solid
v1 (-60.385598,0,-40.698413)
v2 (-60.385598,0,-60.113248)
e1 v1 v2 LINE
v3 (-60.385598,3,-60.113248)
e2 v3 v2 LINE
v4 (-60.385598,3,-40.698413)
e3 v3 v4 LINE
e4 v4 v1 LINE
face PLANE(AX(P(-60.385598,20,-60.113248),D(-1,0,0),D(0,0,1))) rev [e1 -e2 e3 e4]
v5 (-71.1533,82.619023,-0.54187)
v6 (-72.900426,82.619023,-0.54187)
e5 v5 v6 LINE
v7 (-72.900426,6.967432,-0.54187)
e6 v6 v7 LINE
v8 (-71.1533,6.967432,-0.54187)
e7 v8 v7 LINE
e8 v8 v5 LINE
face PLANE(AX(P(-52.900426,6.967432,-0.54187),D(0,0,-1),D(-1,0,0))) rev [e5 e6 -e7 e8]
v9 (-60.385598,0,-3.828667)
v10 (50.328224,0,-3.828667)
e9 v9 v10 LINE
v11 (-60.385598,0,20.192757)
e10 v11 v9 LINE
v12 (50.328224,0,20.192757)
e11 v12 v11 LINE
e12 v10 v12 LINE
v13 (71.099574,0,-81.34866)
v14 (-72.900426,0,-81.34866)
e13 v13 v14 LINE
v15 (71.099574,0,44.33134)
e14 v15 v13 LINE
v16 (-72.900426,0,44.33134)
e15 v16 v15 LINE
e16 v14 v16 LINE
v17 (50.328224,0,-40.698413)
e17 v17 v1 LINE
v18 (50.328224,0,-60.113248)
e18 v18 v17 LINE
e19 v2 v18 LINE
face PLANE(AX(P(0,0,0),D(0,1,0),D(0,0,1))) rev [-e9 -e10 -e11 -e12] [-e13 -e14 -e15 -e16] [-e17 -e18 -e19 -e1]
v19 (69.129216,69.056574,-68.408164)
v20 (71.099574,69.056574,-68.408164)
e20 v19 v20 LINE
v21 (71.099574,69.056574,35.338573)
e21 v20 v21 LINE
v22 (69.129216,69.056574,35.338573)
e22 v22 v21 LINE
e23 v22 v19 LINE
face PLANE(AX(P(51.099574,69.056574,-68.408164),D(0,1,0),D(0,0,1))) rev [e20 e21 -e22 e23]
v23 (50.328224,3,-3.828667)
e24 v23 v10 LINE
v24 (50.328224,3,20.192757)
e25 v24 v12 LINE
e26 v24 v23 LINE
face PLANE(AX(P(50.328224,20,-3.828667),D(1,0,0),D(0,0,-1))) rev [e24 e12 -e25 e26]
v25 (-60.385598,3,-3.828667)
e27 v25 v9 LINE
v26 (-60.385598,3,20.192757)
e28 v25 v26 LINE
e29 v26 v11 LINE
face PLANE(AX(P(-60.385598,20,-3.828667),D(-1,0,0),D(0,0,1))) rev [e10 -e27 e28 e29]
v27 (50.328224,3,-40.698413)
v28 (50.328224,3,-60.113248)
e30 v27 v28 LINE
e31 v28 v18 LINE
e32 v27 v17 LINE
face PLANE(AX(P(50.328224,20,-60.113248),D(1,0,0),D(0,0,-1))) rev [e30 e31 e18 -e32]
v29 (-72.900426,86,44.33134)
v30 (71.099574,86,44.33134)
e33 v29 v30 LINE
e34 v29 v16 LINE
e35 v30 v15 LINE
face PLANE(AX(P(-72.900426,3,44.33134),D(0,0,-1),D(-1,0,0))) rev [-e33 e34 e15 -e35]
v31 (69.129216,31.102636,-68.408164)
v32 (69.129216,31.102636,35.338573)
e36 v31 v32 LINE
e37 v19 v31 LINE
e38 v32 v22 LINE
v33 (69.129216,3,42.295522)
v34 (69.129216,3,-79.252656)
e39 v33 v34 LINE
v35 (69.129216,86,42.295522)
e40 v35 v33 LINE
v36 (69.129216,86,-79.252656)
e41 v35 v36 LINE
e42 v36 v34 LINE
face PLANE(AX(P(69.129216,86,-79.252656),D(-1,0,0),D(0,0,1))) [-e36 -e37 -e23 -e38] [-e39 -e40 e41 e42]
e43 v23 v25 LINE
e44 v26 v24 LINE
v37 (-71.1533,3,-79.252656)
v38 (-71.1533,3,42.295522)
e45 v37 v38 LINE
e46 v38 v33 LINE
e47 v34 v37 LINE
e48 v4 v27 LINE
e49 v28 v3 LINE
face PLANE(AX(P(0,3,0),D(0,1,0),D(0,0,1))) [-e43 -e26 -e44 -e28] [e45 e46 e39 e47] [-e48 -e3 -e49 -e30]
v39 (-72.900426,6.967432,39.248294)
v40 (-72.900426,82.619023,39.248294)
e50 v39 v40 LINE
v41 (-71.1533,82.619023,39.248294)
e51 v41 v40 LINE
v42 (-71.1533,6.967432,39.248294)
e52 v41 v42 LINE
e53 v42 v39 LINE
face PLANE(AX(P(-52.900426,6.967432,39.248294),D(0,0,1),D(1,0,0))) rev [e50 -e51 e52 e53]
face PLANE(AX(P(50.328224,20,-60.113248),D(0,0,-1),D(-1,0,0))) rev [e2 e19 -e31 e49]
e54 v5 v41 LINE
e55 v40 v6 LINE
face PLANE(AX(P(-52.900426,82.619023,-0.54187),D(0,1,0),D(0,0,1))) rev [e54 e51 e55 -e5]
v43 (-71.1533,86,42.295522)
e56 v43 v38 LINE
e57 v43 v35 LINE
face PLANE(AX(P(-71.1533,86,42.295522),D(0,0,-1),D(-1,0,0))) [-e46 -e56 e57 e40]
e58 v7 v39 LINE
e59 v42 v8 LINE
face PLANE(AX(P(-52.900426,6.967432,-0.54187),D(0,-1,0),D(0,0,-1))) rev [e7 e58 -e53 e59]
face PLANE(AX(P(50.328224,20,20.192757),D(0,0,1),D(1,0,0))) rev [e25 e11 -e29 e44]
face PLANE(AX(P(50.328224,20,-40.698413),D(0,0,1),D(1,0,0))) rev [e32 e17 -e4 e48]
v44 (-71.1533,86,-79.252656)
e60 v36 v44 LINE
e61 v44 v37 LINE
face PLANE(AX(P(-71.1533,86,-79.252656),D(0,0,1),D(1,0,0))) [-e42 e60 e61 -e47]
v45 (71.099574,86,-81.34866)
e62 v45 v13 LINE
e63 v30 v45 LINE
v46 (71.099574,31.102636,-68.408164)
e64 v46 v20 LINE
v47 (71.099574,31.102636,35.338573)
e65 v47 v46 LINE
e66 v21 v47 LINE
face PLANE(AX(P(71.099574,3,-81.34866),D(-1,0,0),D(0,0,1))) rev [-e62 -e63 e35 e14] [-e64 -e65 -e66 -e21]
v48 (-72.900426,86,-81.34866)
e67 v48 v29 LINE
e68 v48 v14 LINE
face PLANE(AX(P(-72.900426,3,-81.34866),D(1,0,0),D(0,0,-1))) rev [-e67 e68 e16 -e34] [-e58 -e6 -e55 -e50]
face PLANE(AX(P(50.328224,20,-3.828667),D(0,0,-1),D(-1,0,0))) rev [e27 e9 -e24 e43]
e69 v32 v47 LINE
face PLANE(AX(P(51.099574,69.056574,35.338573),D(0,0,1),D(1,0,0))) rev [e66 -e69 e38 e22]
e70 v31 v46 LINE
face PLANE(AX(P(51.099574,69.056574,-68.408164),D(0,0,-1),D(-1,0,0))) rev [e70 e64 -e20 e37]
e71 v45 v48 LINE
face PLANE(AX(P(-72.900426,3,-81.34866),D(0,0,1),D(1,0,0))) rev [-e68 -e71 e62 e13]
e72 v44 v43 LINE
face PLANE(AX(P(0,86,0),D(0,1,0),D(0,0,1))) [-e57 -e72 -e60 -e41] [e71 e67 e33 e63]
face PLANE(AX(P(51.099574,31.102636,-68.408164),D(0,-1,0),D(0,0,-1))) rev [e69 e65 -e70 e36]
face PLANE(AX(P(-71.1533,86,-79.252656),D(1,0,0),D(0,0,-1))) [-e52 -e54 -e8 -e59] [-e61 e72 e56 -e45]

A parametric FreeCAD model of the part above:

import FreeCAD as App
import Part
import Sketcher

V = App.Vector
Q = App.Units.Quantity


def add_polygon(sketch, points):
    """Adds a closed chain of lines whose ends are joined by coincident constraints."""
    first, n = sketch.GeometryCount, len(points)
    for a, b in zip(points, points[1:] + points[:1]):
        sketch.addGeometry(Part.LineSegment(App.Vector(*a, 0), App.Vector(*b, 0)), False)
    for i in range(n):
        sketch.addConstraint(Sketcher.Constraint("Coincident", first + i, 2, first + (i + 1) % n, 1))

doc = App.newDocument("Part")
body = doc.addObject("PartDesign::Body", "Body")

# Sketch on XZ plane
sketch1 = body.newObject("Sketcher::SketchObject", "Sketch")
sketch1.AttachmentSupport = (doc.getObject("XZ_Plane"), [""])
sketch1.MapMode = "FlatFace"
add_polygon(sketch1, [(-72.900426, -81.34866), (-72.900426, 44.33134), (71.099574, 44.33134), (71.099574, -81.34866)])  # lines 0-3
sketch1.addConstraint([
    Sketcher.Constraint("Vertical", 0),
    Sketcher.Constraint("Horizontal", 1),
    Sketcher.Constraint("Vertical", 2),
    Sketcher.Constraint("Horizontal", 3),
    Sketcher.Constraint("DistanceX", 1, 1, 1, 2, Q("144 mm")),
    Sketcher.Constraint("DistanceY", 0, 1, 0, 2, Q("125.68 mm")),
    Sketcher.Constraint("DistanceY", -1, 1, 0, 2, Q("44.33134 mm")),
    Sketcher.Constraint("DistanceX", 0, 2, -1, 1, Q("72.900426 mm")),
])
pad1 = body.newObject("PartDesign::Pad", "Pad")
pad1.Profile = sketch1
pad1.Length = 3
pad1.Reversed = True

# Sketch on XZ plane
sketch2 = body.newObject("Sketcher::SketchObject", "Sketch001")
sketch2.AttachmentSupport = (doc.getObject("XZ_Plane"), [""])
sketch2.MapMode = "FlatFace"
sketch2.AttachmentOffset = App.Placement(V(0, 0, -3), App.Rotation())
add_polygon(sketch2, [(-72.900426, -81.34866), (-72.900426, 44.33134), (71.099574, 44.33134), (71.099574, -81.34866)])  # lines 0-3
add_polygon(sketch2, [(69.129216, 42.295522), (-71.1533, 42.295522), (-71.1533, -79.252656), (69.129216, -79.252656)])  # lines 4-7
sketch2.addConstraint([
    Sketcher.Constraint("Vertical", 0),
    Sketcher.Constraint("Horizontal", 1),
    Sketcher.Constraint("Vertical", 2),
    Sketcher.Constraint("Horizontal", 3),
    Sketcher.Constraint("Horizontal", 4),
    Sketcher.Constraint("Vertical", 5),
    Sketcher.Constraint("Horizontal", 6),
    Sketcher.Constraint("Vertical", 7),
    Sketcher.Constraint("DistanceX", 1, 1, 1, 2, Q("144 mm")),
    Sketcher.Constraint("DistanceY", 0, 1, 0, 2, Q("125.68 mm")),
    Sketcher.Constraint("DistanceX", 4, 2, -1, 1, Q("71.1533 mm")),
    Sketcher.Constraint("DistanceX", 4, 2, 4, 1, Q("140.282516 mm")),
    Sketcher.Constraint("DistanceY", 5, 2, 5, 1, Q("121.548178 mm")),
    Sketcher.Constraint("DistanceY", -1, 1, 0, 2, Q("44.33134 mm")),
    Sketcher.Constraint("DistanceY", 4, 2, 0, 2, Q("2.035818 mm")),
    Sketcher.Constraint("DistanceX", 0, 2, -1, 1, Q("72.900426 mm")),
])
pad2 = body.newObject("PartDesign::Pad", "Pad001")
pad2.Profile = sketch2
pad2.Length = 83
pad2.Reversed = True

# Sketch on YZ plane
sketch3 = body.newObject("Sketcher::SketchObject", "Sketch002")
sketch3.AttachmentSupport = (doc.getObject("YZ_Plane"), [""])
sketch3.MapMode = "FlatFace"
sketch3.AttachmentOffset = App.Placement(V(0, 0, 71.099574), App.Rotation())
add_polygon(sketch3, [(69.056574, 35.338573), (31.102636, 35.338573), (31.102636, -68.408164), (69.056574, -68.408164)])  # lines 0-3
sketch3.addConstraint([
    Sketcher.Constraint("Horizontal", 0),
    Sketcher.Constraint("Vertical", 1),
    Sketcher.Constraint("Horizontal", 2),
    Sketcher.Constraint("Vertical", 3),
    Sketcher.Constraint("DistanceX", 0, 2, 0, 1, Q("37.953937 mm")),
    Sketcher.Constraint("DistanceY", 1, 2, 1, 1, Q("103.746737 mm")),
    Sketcher.Constraint("DistanceX", -1, 1, 0, 2, Q("31.102636 mm")),
    Sketcher.Constraint("DistanceY", -1, 1, 0, 2, Q("35.338573 mm")),
])
pocket1 = body.newObject("PartDesign::Pocket", "Pocket")
pocket1.Profile = sketch3
pocket1.Length = 20

# Sketch on XZ plane
sketch4 = body.newObject("Sketcher::SketchObject", "Sketch003")
sketch4.AttachmentSupport = (doc.getObject("XZ_Plane"), [""])
sketch4.MapMode = "FlatFace"
add_polygon(sketch4, [(-60.385598, -40.698413), (-60.385598, -60.113248), (50.328224, -60.113248), (50.328224, -40.698413)])  # lines 0-3
add_polygon(sketch4, [(-60.385598, 20.192757), (-60.385598, -3.828667), (50.328224, -3.828667), (50.328224, 20.192757)])  # lines 4-7
sketch4.addConstraint([
    Sketcher.Constraint("Vertical", 0),
    Sketcher.Constraint("Horizontal", 1),
    Sketcher.Constraint("Vertical", 2),
    Sketcher.Constraint("Horizontal", 3),
    Sketcher.Constraint("Vertical", 4),
    Sketcher.Constraint("Horizontal", 5),
    Sketcher.Constraint("Vertical", 6),
    Sketcher.Constraint("Horizontal", 7),
    Sketcher.Constraint("Vertical", 3, 2, 4, 2),
    Sketcher.Constraint("Vertical", 2, 2, 5, 2),
    Sketcher.Constraint("DistanceX", 1, 1, 1, 2, Q("110.713822 mm")),
    Sketcher.Constraint("DistanceY", 0, 2, 0, 1, Q("19.414835 mm")),
    Sketcher.Constraint("DistanceY", 4, 2, 4, 1, Q("24.021424 mm")),
    Sketcher.Constraint("DistanceY", 0, 2, -1, 1, Q("60.113248 mm")),
    Sketcher.Constraint("DistanceY", 0, 2, 4, 2, Q("56.284581 mm")),
    Sketcher.Constraint("DistanceX", 0, 2, -1, 1, Q("60.385598 mm")),
])
pocket2 = body.newObject("PartDesign::Pocket", "Pocket001")
pocket2.Profile = sketch4
pocket2.Length = 20

# Sketch on YZ plane
sketch5 = body.newObject("Sketcher::SketchObject", "Sketch004")
sketch5.AttachmentSupport = (doc.getObject("YZ_Plane"), [""])
sketch5.MapMode = "FlatFace"
sketch5.AttachmentOffset = App.Placement(V(0, 0, -72.900426), App.Rotation())
add_polygon(sketch5, [(82.619023, -0.54187), (6.967432, -0.54187), (6.967432, 39.248294), (82.619023, 39.248294)])  # lines 0-3
sketch5.addConstraint([
    Sketcher.Constraint("Horizontal", 0),
    Sketcher.Constraint("Vertical", 1),
    Sketcher.Constraint("Horizontal", 2),
    Sketcher.Constraint("Vertical", 3),
    Sketcher.Constraint("DistanceX", 0, 2, 0, 1, Q("75.651591 mm")),
    Sketcher.Constraint("DistanceY", 1, 1, 1, 2, Q("39.790164 mm")),
    Sketcher.Constraint("DistanceY", 0, 2, -1, 1, Q("0.54187 mm")),
    Sketcher.Constraint("DistanceX", -1, 1, 0, 2, Q("6.967432 mm")),
])
pocket3 = body.newObject("PartDesign::Pocket", "Pocket002")
pocket3.Profile = sketch5
pocket3.Length = 20
pocket3.Reversed = True

doc.recompute()
